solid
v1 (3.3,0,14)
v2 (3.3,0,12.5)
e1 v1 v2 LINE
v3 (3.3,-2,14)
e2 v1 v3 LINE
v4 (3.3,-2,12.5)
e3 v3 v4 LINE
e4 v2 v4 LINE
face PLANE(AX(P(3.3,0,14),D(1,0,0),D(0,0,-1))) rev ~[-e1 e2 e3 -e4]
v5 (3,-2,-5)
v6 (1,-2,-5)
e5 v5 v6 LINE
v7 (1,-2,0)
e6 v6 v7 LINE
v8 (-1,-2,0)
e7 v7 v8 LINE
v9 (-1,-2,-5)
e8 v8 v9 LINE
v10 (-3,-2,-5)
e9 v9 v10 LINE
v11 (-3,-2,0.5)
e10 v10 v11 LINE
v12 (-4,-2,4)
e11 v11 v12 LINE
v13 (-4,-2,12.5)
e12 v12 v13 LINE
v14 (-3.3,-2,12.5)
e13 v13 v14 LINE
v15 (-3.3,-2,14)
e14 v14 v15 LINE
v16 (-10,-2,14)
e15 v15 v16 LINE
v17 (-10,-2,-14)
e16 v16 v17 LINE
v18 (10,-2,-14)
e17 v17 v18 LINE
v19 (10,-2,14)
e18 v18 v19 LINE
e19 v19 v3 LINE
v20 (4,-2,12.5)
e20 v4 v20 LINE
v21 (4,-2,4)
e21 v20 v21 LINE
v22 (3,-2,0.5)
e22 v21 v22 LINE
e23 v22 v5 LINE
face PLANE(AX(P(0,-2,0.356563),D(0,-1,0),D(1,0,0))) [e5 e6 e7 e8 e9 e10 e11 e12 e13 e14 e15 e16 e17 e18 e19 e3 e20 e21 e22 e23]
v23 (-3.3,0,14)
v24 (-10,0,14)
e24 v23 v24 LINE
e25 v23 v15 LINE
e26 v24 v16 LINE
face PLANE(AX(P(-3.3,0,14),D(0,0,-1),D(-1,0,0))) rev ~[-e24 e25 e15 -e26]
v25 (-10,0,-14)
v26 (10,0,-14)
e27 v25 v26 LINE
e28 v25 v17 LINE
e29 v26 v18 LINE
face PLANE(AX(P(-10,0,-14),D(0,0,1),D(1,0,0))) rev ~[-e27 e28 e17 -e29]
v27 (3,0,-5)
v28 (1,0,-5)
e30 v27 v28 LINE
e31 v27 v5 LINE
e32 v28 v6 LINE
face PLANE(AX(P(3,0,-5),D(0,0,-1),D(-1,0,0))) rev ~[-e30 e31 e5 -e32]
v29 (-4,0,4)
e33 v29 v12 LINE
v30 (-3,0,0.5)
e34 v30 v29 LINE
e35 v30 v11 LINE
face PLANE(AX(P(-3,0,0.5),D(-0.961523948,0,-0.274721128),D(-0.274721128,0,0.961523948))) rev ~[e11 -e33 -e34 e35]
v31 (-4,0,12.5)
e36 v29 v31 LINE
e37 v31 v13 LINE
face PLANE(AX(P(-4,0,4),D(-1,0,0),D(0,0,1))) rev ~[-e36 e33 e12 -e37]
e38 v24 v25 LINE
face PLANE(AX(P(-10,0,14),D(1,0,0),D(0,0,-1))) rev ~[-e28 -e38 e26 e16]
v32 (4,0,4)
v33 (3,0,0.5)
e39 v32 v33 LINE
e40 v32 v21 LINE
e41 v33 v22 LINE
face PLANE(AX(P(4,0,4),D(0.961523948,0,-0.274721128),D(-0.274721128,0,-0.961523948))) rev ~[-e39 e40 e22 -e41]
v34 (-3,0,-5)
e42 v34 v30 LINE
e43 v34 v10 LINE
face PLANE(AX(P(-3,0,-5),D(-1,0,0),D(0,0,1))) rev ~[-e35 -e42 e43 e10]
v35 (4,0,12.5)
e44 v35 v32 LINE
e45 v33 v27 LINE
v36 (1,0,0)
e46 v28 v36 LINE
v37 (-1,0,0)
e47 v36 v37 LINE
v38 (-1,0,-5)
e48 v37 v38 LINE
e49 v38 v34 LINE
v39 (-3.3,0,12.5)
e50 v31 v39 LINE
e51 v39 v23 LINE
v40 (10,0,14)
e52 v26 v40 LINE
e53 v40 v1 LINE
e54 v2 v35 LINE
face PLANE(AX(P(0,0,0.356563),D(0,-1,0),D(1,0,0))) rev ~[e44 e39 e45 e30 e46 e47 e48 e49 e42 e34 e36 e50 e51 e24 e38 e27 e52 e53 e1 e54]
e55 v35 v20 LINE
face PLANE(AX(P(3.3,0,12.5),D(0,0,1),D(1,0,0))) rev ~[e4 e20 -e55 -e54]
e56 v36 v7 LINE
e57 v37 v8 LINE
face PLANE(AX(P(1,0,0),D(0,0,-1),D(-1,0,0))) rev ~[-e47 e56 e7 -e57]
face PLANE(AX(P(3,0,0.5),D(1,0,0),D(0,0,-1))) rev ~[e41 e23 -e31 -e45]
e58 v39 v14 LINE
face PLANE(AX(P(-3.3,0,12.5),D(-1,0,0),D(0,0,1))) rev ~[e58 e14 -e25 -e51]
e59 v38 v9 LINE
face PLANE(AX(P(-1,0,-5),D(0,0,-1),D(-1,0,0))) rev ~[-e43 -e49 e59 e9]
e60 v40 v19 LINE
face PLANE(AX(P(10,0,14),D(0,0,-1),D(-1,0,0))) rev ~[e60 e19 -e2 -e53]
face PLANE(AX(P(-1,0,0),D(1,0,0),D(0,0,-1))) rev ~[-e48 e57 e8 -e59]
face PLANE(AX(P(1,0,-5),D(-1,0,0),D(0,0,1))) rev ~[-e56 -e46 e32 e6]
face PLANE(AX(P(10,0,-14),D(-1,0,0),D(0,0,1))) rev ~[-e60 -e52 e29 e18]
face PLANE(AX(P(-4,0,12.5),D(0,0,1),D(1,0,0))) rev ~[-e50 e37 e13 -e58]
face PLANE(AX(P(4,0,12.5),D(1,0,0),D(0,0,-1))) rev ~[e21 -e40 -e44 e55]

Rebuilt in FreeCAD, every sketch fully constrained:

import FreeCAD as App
import Part
import Sketcher
from FreeCAD import Vector
Q = App.Units.Quantity

doc = App.newDocument("Part")
params = doc.addObject("Spreadsheet::Sheet", "Params")
for row, (alias, value) in enumerate([
    ("sketch1_width", "20 mm"),
    ("sketch1_width2", "2 mm"),
    ("sketch1_height", "28 mm"),
    ("sketch1_height2", "5 mm"),
    ("sketch1_width3", "6.7 mm"),
    ("pad1_length", "2 mm"),
], start=1):
    params.set(f"A{row}", alias)
    params.set(f"B{row}", "=" + value)
    params.setAlias(f"B{row}", alias)

body = doc.addObject("PartDesign::Body", "Body")

# Sketch on XZ plane
sketch1 = doc.addObject("Sketcher::SketchObject", "Sketch")
body.addObject(sketch1)
sketch1.AttachmentSupport = (doc.XZ_Plane, [""])
sketch1.MapMode = "FlatFace"
sketch1.addGeometry(Part.LineSegment(Vector(-10, -14, 0), Vector(10, -14, 0)), False)
sketch1.addGeometry(Part.LineSegment(Vector(10, -14, 0), Vector(10, 14, 0)), False)
sketch1.addGeometry(Part.LineSegment(Vector(10, 14, 0), Vector(3.3, 14, 0)), False)
sketch1.addGeometry(Part.LineSegment(Vector(3.3, 14, 0), Vector(3.3, 12.5, 0)), False)
sketch1.addGeometry(Part.LineSegment(Vector(3.3, 12.5, 0), Vector(4, 12.5, 0)), False)
sketch1.addGeometry(Part.LineSegment(Vector(4, 12.5, 0), Vector(4, 4, 0)), False)
sketch1.addGeometry(Part.LineSegment(Vector(4, 4, 0), Vector(3, 0.5, 0)), False)
sketch1.addGeometry(Part.LineSegment(Vector(3, 0.5, 0), Vector(3, -5, 0)), False)
sketch1.addGeometry(Part.LineSegment(Vector(3, -5, 0), Vector(1, -5, 0)), False)
sketch1.addGeometry(Part.LineSegment(Vector(1, -5, 0), Vector(1, 0, 0)), False)
sketch1.addGeometry(Part.LineSegment(Vector(1, 0, 0), Vector(-1, 0, 0)), False)
sketch1.addGeometry(Part.LineSegment(Vector(-1, 0, 0), Vector(-1, -5, 0)), False)
sketch1.addGeometry(Part.LineSegment(Vector(-1, -5, 0), Vector(-3, -5, 0)), False)
sketch1.addGeometry(Part.LineSegment(Vector(-3, -5, 0), Vector(-3, 0.5, 0)), False)
sketch1.addGeometry(Part.LineSegment(Vector(-3, 0.5, 0), Vector(-4, 4, 0)), False)
sketch1.addGeometry(Part.LineSegment(Vector(-4, 4, 0), Vector(-4, 12.5, 0)), False)
sketch1.addGeometry(Part.LineSegment(Vector(-4, 12.5, 0), Vector(-3.3, 12.5, 0)), False)
sketch1.addGeometry(Part.LineSegment(Vector(-3.3, 12.5, 0), Vector(-3.3, 14, 0)), False)
sketch1.addGeometry(Part.LineSegment(Vector(-3.3, 14, 0), Vector(-10, 14, 0)), False)
sketch1.addGeometry(Part.LineSegment(Vector(-10, 14, 0), Vector(-10, -14, 0)), False)
sketch1.addConstraint(Sketcher.Constraint("Coincident", 0, 2, 1, 1))
sketch1.addConstraint(Sketcher.Constraint("Coincident", 1, 2, 2, 1))
sketch1.addConstraint(Sketcher.Constraint("Coincident", 2, 2, 3, 1))
sketch1.addConstraint(Sketcher.Constraint("Coincident", 3, 2, 4, 1))
sketch1.addConstraint(Sketcher.Constraint("Coincident", 4, 2, 5, 1))
sketch1.addConstraint(Sketcher.Constraint("Coincident", 5, 2, 6, 1))
sketch1.addConstraint(Sketcher.Constraint("Coincident", 6, 2, 7, 1))
sketch1.addConstraint(Sketcher.Constraint("Coincident", 7, 2, 8, 1))
sketch1.addConstraint(Sketcher.Constraint("Coincident", 8, 2, 9, 1))
sketch1.addConstraint(Sketcher.Constraint("Coincident", 9, 2, 10, 1))
sketch1.addConstraint(Sketcher.Constraint("Coincident", 10, 2, 11, 1))
sketch1.addConstraint(Sketcher.Constraint("Coincident", 11, 2, 12, 1))
sketch1.addConstraint(Sketcher.Constraint("Coincident", 12, 2, 13, 1))
sketch1.addConstraint(Sketcher.Constraint("Coincident", 13, 2, 14, 1))
sketch1.addConstraint(Sketcher.Constraint("Coincident", 14, 2, 15, 1))
sketch1.addConstraint(Sketcher.Constraint("Coincident", 15, 2, 16, 1))
sketch1.addConstraint(Sketcher.Constraint("Coincident", 16, 2, 17, 1))
sketch1.addConstraint(Sketcher.Constraint("Coincident", 17, 2, 18, 1))
sketch1.addConstraint(Sketcher.Constraint("Coincident", 18, 2, 19, 1))
sketch1.addConstraint(Sketcher.Constraint("Coincident", 19, 2, 0, 1))
sketch1.addConstraint(Sketcher.Constraint("Horizontal", 0))
sketch1.addConstraint(Sketcher.Constraint("Vertical", 1))
sketch1.addConstraint(Sketcher.Constraint("Horizontal", 2))
sketch1.addConstraint(Sketcher.Constraint("Vertical", 3))
sketch1.addConstraint(Sketcher.Constraint("Horizontal", 4))
sketch1.addConstraint(Sketcher.Constraint("Vertical", 5))
sketch1.addConstraint(Sketcher.Constraint("Vertical", 7))
sketch1.addConstraint(Sketcher.Constraint("Horizontal", 8))
sketch1.addConstraint(Sketcher.Constraint("Vertical", 9))
sketch1.addConstraint(Sketcher.Constraint("Horizontal", 10))
sketch1.addConstraint(Sketcher.Constraint("Vertical", 11))
sketch1.addConstraint(Sketcher.Constraint("Horizontal", 12))
sketch1.addConstraint(Sketcher.Constraint("Vertical", 13))
sketch1.addConstraint(Sketcher.Constraint("Vertical", 15))
sketch1.addConstraint(Sketcher.Constraint("Horizontal", 16))
sketch1.addConstraint(Sketcher.Constraint("Vertical", 17))
sketch1.addConstraint(Sketcher.Constraint("Horizontal", 18))
sketch1.addConstraint(Sketcher.Constraint("Vertical", 19))
sketch1.addConstraint(Sketcher.Constraint("Symmetric", 9, 2, 10, 2, -1, 1))
sketch1.addConstraint(Sketcher.Constraint("Symmetric", 0, 2, 18, 2, -1, 1))
sketch1.addConstraint(Sketcher.Constraint("Symmetric", 7, 2, 12, 2, -2))
sketch1.addConstraint(Sketcher.Constraint("Symmetric", 5, 2, 14, 2, -2))
sketch1.addConstraint(Sketcher.Constraint("Symmetric", 3, 2, 16, 2, -2))
sketch1.addConstraint(Sketcher.Constraint("Horizontal", 6, 2, 13, 2))
sketch1.addConstraint(Sketcher.Constraint("Horizontal", 2, 2, 17, 2))
sketch1.addConstraint(Sketcher.Constraint("Equal", 8, 10))
sketch1.addConstraint(Sketcher.Constraint("DistanceX", 0, 1, 0, 2, Q("20 mm")))
sketch1.addConstraint(Sketcher.Constraint("DistanceX", 8, 2, 8, 1, Q("2 mm")))
sketch1.addConstraint(Sketcher.Constraint("DistanceY", 1, 1, 1, 2, Q("28 mm")))
sketch1.addConstraint(Sketcher.Constraint("DistanceY", 9, 1, 9, 2, Q("5 mm")))
sketch1.addConstraint(Sketcher.Constraint("DistanceX", 2, 2, 2, 1, Q("6.7 mm")))
sketch1.addConstraint(Sketcher.Constraint("DistanceX", 4, 1, 4, 2, Q("0.7 mm")))
sketch1.addConstraint(Sketcher.Constraint("DistanceY", 3, 2, 3, 1, Q("1.5 mm")))
sketch1.addConstraint(Sketcher.Constraint("DistanceY", 5, 2, 5, 1, Q("8.5 mm")))
sketch1.addConstraint(Sketcher.Constraint("DistanceY", 7, 2, 7, 1, Q("5.5 mm")))
sketch1.setExpression("Constraints[46]", "Params.sketch1_width")
sketch1.setExpression("Constraints[47]", "Params.sketch1_width2")
sketch1.setExpression("Constraints[48]", "Params.sketch1_height")
sketch1.setExpression("Constraints[49]", "Params.sketch1_height2")
sketch1.setExpression("Constraints[50]", "Params.sketch1_width3")
pad1 = doc.addObject("PartDesign::Pad", "Pad")
body.addObject(pad1)
pad1.Profile = sketch1
pad1.setExpression("Length", "Params.pad1_length")

doc.recompute()
